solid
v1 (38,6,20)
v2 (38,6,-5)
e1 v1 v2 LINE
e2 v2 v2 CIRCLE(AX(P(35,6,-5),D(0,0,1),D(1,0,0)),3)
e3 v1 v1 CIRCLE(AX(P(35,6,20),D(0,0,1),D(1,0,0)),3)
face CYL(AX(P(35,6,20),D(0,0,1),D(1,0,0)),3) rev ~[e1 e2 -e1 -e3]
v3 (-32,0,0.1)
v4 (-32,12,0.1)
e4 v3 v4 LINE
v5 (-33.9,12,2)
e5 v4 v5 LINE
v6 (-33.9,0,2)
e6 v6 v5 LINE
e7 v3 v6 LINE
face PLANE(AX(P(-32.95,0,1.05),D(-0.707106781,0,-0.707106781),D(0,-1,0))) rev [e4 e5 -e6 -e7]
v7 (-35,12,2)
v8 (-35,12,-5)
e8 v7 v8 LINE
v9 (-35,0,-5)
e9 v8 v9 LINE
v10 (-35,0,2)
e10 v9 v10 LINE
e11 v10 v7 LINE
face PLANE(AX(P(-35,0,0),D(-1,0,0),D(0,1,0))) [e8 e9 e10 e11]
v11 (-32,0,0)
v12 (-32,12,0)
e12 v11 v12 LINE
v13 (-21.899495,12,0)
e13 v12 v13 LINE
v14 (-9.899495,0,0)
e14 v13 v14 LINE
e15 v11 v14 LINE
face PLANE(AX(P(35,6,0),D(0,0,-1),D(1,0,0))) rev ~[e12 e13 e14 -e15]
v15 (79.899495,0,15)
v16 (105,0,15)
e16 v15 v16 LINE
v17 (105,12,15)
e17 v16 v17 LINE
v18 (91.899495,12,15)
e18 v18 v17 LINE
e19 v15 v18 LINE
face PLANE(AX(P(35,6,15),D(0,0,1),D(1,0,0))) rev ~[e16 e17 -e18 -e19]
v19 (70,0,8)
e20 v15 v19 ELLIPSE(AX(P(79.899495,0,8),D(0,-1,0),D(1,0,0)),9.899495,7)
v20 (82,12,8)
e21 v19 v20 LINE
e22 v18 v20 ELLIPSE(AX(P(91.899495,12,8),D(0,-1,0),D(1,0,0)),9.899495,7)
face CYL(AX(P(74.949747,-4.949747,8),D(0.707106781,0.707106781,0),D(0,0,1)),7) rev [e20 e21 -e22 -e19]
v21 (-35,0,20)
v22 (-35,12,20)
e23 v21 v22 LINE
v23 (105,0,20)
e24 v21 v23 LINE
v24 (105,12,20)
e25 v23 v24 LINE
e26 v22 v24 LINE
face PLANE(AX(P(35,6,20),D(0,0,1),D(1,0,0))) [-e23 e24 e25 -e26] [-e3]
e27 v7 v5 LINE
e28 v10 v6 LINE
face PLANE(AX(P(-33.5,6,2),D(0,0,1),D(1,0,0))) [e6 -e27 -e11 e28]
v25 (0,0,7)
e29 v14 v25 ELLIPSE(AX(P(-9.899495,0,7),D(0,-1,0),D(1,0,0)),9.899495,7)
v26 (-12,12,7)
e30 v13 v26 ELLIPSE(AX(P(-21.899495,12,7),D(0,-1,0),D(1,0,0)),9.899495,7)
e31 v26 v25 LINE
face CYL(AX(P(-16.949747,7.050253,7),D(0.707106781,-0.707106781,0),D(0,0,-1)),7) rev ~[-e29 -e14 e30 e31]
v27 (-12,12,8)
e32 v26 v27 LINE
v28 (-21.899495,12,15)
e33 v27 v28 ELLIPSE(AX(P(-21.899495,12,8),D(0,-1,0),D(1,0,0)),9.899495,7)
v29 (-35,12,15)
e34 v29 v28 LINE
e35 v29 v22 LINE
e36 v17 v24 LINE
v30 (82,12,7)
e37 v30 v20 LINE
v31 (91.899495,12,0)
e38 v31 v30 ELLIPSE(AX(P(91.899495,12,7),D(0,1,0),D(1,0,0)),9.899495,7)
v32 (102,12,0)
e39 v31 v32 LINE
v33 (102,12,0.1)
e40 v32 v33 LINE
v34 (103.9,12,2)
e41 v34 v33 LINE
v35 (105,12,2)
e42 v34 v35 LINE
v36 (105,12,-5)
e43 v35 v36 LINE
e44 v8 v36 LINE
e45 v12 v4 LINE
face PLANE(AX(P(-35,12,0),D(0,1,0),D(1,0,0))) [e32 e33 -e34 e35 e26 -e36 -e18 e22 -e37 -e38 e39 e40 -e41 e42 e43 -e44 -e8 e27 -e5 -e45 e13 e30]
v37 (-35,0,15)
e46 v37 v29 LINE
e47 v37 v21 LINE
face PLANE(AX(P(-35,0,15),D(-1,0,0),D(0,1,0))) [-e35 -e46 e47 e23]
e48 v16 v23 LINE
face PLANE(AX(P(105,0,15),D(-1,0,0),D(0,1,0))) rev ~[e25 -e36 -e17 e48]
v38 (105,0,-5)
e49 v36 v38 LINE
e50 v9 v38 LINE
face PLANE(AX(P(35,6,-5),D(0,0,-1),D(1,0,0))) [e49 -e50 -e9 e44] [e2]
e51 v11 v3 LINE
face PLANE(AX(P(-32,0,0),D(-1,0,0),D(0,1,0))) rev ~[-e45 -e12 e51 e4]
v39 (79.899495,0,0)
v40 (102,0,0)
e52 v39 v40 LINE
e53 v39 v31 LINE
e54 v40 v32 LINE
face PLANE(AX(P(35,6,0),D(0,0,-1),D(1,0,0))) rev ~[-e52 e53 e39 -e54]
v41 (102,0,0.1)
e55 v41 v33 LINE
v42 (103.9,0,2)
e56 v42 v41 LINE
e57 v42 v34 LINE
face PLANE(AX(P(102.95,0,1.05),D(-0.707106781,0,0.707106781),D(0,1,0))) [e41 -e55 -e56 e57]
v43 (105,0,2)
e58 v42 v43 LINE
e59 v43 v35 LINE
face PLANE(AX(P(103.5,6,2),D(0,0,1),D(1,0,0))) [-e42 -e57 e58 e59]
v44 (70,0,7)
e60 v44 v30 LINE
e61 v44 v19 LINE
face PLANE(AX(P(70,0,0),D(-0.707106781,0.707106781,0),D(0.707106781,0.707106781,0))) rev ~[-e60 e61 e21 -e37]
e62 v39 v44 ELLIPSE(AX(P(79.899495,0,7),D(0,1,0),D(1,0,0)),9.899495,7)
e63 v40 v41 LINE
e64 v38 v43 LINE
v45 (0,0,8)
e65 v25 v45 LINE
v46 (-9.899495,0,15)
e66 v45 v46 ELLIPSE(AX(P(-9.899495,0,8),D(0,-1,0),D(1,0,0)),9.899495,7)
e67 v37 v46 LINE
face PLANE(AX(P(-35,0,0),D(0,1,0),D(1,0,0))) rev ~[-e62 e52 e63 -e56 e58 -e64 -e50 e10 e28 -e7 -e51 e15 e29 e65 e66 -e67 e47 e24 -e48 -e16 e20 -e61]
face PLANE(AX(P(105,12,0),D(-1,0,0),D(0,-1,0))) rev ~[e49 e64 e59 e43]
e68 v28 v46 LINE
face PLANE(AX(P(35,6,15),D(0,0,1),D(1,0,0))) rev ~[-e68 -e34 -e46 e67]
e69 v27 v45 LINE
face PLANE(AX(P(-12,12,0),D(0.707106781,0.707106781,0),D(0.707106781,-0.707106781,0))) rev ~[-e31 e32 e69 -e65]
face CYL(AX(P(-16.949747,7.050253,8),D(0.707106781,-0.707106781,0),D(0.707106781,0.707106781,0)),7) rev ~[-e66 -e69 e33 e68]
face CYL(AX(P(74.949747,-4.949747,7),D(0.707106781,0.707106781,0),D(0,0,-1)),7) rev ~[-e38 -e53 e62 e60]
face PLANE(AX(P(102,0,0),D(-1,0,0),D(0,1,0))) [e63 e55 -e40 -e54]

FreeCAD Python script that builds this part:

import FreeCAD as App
import Part
import Sketcher
from FreeCAD import Vector


def edges_at(feature, points):
    """Names of the edges that pass closest to the given points."""
    edges = feature.Shape.Edges
    near = lambda p: min(range(len(edges)), key=lambda i: edges[i].distToShape(Part.Vertex(*p))[0])
    return sorted({f"Edge{near(p) + 1}" for p in points})


def add_polygon(sketch, points):
    """Adds a closed chain of lines whose ends are joined by coincident constraints."""
    first, n = sketch.GeometryCount, len(points)
    for a, b in zip(points, points[1:] + points[:1]):
        sketch.addGeometry(Part.LineSegment(App.Vector(*a, 0), App.Vector(*b, 0)), False)
    for i in range(n):
        sketch.addConstraint(Sketcher.Constraint("Coincident", first + i, 2, first + (i + 1) % n, 1))

doc = App.newDocument("Part")
params = doc.addObject("Spreadsheet::Sheet", "Params")
for row, (alias, value) in enumerate([
    ("sketch1_width", "70 mm"),
    ("sketch1_width2", "94 mm"),
    ("pad1_length", "15 mm"),
    ("sketch2_width", "140 mm"),
    ("sketch2_height", "12 mm"),
    ("pad2_length", "5 mm"),
    ("sketch3_width", "140 mm"),
    ("sketch3_height", "12 mm"),
    ("pad3_length", "5 mm"),
    ("fillet_radius", "7 mm"),
    ("sketch4_diameter", "6 mm"),
    ("sketch5_width", "3 mm"),
    ("sketch5_height", "12 mm"),
    ("pad4_length", "2 mm"),
    ("chamfer_size", "1.9 mm"),
], start=1):
    params.set(f"A{row}", alias)
    params.set(f"B{row}", "=" + value)
    params.setAlias(f"B{row}", alias)

body = doc.addObject("PartDesign::Body", "Body")

sketch1 = doc.addObject("Sketcher::SketchObject", "Sketch")
body.addObject(sketch1)
sketch1.AttachmentSupport = (doc.XY_Plane, [""])
sketch1.MapMode = "FlatFace"
add_polygon(sketch1, [(0, 0), (70, 0), (82, 12), (-12, 12)])
sketch1.addConstraint(Sketcher.Constraint("Horizontal", 0))
sketch1.addConstraint(Sketcher.Constraint("Horizontal", 2))
sketch1.addConstraint(Sketcher.Constraint("Coincident", 3, 2, -1, 1))
sketch1.addConstraint(Sketcher.Constraint("Perpendicular", 1, 3))
sketch1.addConstraint(Sketcher.Constraint("Equal", 1, 3))
sketch1.addConstraint(Sketcher.Constraint("DistanceX", 0, 1, 0, 2, 70.0))
sketch1.addConstraint(Sketcher.Constraint("DistanceX", 2, 2, 2, 1, 94.0))
sketch1.setExpression("Constraints[9]", "Params.sketch1_width")
sketch1.setExpression("Constraints[10]", "Params.sketch1_width2")
pad1 = doc.addObject("PartDesign::Pad", "Pad")
body.addObject(pad1)
pad1.Profile = sketch1
pad1.setExpression("Length", "Params.pad1_length")

sketch2 = doc.addObject("Sketcher::SketchObject", "Sketch001")
body.addObject(sketch2)
sketch2.AttachmentSupport = (doc.XY_Plane, [""])
sketch2.MapMode = "FlatFace"
sketch2.AttachmentOffset = App.Placement(Vector(0, 0, 15), App.Rotation())
add_polygon(sketch2, [(-35, 12), (-35, 0), (105, 0), (105, 12)])
sketch2.addConstraint(Sketcher.Constraint("Vertical", 0))
sketch2.addConstraint(Sketcher.Constraint("Horizontal", 1))
sketch2.addConstraint(Sketcher.Constraint("Vertical", 2))
sketch2.addConstraint(Sketcher.Constraint("Horizontal", 3))
sketch2.addConstraint(Sketcher.Constraint("PointOnObject", 0, 2, -1))
sketch2.addConstraint(Sketcher.Constraint("DistanceX", 1, 1, 1, 2, 140.0))
sketch2.addConstraint(Sketcher.Constraint("DistanceY", 0, 2, 0, 1, 12.0))
sketch2.addConstraint(Sketcher.Constraint("DistanceX", 0, 2, -1, 1, 35.0))
sketch2.setExpression("Constraints[9]", "Params.sketch2_width")
sketch2.setExpression("Constraints[10]", "Params.sketch2_height")
pad2 = doc.addObject("PartDesign::Pad", "Pad001")
body.addObject(pad2)
pad2.Profile = sketch2
pad2.setExpression("Length", "Params.pad2_length")

sketch3 = doc.addObject("Sketcher::SketchObject", "Sketch002")
body.addObject(sketch3)
sketch3.AttachmentSupport = (doc.XY_Plane, [""])
sketch3.MapMode = "FlatFace"
add_polygon(sketch3, [(-35, 0), (-35, 12), (105, 12), (105, 0)])
sketch3.addConstraint(Sketcher.Constraint("Vertical", 0))
sketch3.addConstraint(Sketcher.Constraint("Horizontal", 1))
sketch3.addConstraint(Sketcher.Constraint("Vertical", 2))
sketch3.addConstraint(Sketcher.Constraint("Horizontal", 3))
sketch3.addConstraint(Sketcher.Constraint("PointOnObject", 2, 2, -1))
sketch3.addConstraint(Sketcher.Constraint("DistanceX", 1, 1, 1, 2, 140.0))
sketch3.addConstraint(Sketcher.Constraint("DistanceY", 0, 1, 0, 2, 12.0))
sketch3.addConstraint(Sketcher.Constraint("DistanceX", 0, 2, -1, 1, 35.0))
sketch3.setExpression("Constraints[9]", "Params.sketch3_width")
sketch3.setExpression("Constraints[10]", "Params.sketch3_height")
pad3 = doc.addObject("PartDesign::Pad", "Pad002")
body.addObject(pad3)
pad3.Profile = sketch3
pad3.setExpression("Length", "Params.pad3_length")
pad3.Reversed = True
doc.recompute()

fillet = doc.addObject("PartDesign::Fillet", "Fillet")
body.addObject(fillet)
fillet.Base = (pad3, edges_at(pad3, [
    (76, 6, 15),
    (-6, 6, 15),
    (-6, 6, 0),
    (76, 6, 0),
]))
fillet.setExpression("Radius", "Params.fillet_radius")

sketch4 = doc.addObject("Sketcher::SketchObject", "Sketch003")
body.addObject(sketch4)
sketch4.AttachmentSupport = (doc.XY_Plane, [""])
sketch4.MapMode = "FlatFace"
sketch4.AttachmentOffset = App.Placement(Vector(0, 0, 20), App.Rotation())
sketch4.addGeometry(Part.Circle(Vector(35, 6, 0), Vector(0, 0, 1), 3), False)
sketch4.addConstraint(Sketcher.Constraint("Diameter", 0, 6.0))
sketch4.addConstraint(Sketcher.Constraint("DistanceX", -1, 1, 0, 3, 35.0))
sketch4.addConstraint(Sketcher.Constraint("DistanceY", -1, 1, 0, 3, 6.0))
sketch4.setExpression("Constraints[0]", "Params.sketch4_diameter")
pocket1 = doc.addObject("PartDesign::Pocket", "Pocket")
body.addObject(pocket1)
pocket1.Profile = sketch4
pocket1.Type = "ThroughAll"

sketch5 = doc.addObject("Sketcher::SketchObject", "Sketch004")
body.addObject(sketch5)
sketch5.AttachmentSupport = (doc.XY_Plane, [""])
sketch5.MapMode = "FlatFace"
add_polygon(sketch5, [(-35, 12), (-35, 0), (-32, 0), (-32, 12)])
add_polygon(sketch5, [(102, 12), (102, 0), (105, 0), (105, 12)])
sketch5.addConstraint(Sketcher.Constraint("Vertical", 0))
sketch5.addConstraint(Sketcher.Constraint("Horizontal", 1))
sketch5.addConstraint(Sketcher.Constraint("Vertical", 2))
sketch5.addConstraint(Sketcher.Constraint("Horizontal", 3))
sketch5.addConstraint(Sketcher.Constraint("Vertical", 4))
sketch5.addConstraint(Sketcher.Constraint("Horizontal", 5))
sketch5.addConstraint(Sketcher.Constraint("Vertical", 6))
sketch5.addConstraint(Sketcher.Constraint("Horizontal", 7))
sketch5.addConstraint(Sketcher.Constraint("PointOnObject", 0, 2, -1))
sketch5.addConstraint(Sketcher.Constraint("PointOnObject", 4, 2, -1))
sketch5.addConstraint(Sketcher.Constraint("Horizontal", 3, 2, 6, 2))
sketch5.addConstraint(Sketcher.Constraint("Equal", 3, 5))
sketch5.addConstraint(Sketcher.Constraint("DistanceX", 1, 1, 1, 2, 3.0))
sketch5.addConstraint(Sketcher.Constraint("DistanceY", 0, 2, 0, 1, 12.0))
sketch5.addConstraint(Sketcher.Constraint("DistanceX", 0, 2, -1, 1, 35.0))
sketch5.addConstraint(Sketcher.Constraint("DistanceX", -1, 1, 4, 2, 102.0))
sketch5.setExpression("Constraints[20]", "Params.sketch5_width")
sketch5.setExpression("Constraints[21]", "Params.sketch5_height")
pad4 = doc.addObject("PartDesign::Pad", "Pad003")
body.addObject(pad4)
pad4.Profile = sketch5
pad4.setExpression("Length", "Params.pad4_length")
doc.recompute()

chamfer = doc.addObject("PartDesign::Chamfer", "Chamfer")
body.addObject(chamfer)
chamfer.Base = (pad4, edges_at(pad4, [(-32, 6, 2), (102, 6, 2)]))
chamfer.setExpression("Size", "Params.chamfer_size")

doc.recompute()
